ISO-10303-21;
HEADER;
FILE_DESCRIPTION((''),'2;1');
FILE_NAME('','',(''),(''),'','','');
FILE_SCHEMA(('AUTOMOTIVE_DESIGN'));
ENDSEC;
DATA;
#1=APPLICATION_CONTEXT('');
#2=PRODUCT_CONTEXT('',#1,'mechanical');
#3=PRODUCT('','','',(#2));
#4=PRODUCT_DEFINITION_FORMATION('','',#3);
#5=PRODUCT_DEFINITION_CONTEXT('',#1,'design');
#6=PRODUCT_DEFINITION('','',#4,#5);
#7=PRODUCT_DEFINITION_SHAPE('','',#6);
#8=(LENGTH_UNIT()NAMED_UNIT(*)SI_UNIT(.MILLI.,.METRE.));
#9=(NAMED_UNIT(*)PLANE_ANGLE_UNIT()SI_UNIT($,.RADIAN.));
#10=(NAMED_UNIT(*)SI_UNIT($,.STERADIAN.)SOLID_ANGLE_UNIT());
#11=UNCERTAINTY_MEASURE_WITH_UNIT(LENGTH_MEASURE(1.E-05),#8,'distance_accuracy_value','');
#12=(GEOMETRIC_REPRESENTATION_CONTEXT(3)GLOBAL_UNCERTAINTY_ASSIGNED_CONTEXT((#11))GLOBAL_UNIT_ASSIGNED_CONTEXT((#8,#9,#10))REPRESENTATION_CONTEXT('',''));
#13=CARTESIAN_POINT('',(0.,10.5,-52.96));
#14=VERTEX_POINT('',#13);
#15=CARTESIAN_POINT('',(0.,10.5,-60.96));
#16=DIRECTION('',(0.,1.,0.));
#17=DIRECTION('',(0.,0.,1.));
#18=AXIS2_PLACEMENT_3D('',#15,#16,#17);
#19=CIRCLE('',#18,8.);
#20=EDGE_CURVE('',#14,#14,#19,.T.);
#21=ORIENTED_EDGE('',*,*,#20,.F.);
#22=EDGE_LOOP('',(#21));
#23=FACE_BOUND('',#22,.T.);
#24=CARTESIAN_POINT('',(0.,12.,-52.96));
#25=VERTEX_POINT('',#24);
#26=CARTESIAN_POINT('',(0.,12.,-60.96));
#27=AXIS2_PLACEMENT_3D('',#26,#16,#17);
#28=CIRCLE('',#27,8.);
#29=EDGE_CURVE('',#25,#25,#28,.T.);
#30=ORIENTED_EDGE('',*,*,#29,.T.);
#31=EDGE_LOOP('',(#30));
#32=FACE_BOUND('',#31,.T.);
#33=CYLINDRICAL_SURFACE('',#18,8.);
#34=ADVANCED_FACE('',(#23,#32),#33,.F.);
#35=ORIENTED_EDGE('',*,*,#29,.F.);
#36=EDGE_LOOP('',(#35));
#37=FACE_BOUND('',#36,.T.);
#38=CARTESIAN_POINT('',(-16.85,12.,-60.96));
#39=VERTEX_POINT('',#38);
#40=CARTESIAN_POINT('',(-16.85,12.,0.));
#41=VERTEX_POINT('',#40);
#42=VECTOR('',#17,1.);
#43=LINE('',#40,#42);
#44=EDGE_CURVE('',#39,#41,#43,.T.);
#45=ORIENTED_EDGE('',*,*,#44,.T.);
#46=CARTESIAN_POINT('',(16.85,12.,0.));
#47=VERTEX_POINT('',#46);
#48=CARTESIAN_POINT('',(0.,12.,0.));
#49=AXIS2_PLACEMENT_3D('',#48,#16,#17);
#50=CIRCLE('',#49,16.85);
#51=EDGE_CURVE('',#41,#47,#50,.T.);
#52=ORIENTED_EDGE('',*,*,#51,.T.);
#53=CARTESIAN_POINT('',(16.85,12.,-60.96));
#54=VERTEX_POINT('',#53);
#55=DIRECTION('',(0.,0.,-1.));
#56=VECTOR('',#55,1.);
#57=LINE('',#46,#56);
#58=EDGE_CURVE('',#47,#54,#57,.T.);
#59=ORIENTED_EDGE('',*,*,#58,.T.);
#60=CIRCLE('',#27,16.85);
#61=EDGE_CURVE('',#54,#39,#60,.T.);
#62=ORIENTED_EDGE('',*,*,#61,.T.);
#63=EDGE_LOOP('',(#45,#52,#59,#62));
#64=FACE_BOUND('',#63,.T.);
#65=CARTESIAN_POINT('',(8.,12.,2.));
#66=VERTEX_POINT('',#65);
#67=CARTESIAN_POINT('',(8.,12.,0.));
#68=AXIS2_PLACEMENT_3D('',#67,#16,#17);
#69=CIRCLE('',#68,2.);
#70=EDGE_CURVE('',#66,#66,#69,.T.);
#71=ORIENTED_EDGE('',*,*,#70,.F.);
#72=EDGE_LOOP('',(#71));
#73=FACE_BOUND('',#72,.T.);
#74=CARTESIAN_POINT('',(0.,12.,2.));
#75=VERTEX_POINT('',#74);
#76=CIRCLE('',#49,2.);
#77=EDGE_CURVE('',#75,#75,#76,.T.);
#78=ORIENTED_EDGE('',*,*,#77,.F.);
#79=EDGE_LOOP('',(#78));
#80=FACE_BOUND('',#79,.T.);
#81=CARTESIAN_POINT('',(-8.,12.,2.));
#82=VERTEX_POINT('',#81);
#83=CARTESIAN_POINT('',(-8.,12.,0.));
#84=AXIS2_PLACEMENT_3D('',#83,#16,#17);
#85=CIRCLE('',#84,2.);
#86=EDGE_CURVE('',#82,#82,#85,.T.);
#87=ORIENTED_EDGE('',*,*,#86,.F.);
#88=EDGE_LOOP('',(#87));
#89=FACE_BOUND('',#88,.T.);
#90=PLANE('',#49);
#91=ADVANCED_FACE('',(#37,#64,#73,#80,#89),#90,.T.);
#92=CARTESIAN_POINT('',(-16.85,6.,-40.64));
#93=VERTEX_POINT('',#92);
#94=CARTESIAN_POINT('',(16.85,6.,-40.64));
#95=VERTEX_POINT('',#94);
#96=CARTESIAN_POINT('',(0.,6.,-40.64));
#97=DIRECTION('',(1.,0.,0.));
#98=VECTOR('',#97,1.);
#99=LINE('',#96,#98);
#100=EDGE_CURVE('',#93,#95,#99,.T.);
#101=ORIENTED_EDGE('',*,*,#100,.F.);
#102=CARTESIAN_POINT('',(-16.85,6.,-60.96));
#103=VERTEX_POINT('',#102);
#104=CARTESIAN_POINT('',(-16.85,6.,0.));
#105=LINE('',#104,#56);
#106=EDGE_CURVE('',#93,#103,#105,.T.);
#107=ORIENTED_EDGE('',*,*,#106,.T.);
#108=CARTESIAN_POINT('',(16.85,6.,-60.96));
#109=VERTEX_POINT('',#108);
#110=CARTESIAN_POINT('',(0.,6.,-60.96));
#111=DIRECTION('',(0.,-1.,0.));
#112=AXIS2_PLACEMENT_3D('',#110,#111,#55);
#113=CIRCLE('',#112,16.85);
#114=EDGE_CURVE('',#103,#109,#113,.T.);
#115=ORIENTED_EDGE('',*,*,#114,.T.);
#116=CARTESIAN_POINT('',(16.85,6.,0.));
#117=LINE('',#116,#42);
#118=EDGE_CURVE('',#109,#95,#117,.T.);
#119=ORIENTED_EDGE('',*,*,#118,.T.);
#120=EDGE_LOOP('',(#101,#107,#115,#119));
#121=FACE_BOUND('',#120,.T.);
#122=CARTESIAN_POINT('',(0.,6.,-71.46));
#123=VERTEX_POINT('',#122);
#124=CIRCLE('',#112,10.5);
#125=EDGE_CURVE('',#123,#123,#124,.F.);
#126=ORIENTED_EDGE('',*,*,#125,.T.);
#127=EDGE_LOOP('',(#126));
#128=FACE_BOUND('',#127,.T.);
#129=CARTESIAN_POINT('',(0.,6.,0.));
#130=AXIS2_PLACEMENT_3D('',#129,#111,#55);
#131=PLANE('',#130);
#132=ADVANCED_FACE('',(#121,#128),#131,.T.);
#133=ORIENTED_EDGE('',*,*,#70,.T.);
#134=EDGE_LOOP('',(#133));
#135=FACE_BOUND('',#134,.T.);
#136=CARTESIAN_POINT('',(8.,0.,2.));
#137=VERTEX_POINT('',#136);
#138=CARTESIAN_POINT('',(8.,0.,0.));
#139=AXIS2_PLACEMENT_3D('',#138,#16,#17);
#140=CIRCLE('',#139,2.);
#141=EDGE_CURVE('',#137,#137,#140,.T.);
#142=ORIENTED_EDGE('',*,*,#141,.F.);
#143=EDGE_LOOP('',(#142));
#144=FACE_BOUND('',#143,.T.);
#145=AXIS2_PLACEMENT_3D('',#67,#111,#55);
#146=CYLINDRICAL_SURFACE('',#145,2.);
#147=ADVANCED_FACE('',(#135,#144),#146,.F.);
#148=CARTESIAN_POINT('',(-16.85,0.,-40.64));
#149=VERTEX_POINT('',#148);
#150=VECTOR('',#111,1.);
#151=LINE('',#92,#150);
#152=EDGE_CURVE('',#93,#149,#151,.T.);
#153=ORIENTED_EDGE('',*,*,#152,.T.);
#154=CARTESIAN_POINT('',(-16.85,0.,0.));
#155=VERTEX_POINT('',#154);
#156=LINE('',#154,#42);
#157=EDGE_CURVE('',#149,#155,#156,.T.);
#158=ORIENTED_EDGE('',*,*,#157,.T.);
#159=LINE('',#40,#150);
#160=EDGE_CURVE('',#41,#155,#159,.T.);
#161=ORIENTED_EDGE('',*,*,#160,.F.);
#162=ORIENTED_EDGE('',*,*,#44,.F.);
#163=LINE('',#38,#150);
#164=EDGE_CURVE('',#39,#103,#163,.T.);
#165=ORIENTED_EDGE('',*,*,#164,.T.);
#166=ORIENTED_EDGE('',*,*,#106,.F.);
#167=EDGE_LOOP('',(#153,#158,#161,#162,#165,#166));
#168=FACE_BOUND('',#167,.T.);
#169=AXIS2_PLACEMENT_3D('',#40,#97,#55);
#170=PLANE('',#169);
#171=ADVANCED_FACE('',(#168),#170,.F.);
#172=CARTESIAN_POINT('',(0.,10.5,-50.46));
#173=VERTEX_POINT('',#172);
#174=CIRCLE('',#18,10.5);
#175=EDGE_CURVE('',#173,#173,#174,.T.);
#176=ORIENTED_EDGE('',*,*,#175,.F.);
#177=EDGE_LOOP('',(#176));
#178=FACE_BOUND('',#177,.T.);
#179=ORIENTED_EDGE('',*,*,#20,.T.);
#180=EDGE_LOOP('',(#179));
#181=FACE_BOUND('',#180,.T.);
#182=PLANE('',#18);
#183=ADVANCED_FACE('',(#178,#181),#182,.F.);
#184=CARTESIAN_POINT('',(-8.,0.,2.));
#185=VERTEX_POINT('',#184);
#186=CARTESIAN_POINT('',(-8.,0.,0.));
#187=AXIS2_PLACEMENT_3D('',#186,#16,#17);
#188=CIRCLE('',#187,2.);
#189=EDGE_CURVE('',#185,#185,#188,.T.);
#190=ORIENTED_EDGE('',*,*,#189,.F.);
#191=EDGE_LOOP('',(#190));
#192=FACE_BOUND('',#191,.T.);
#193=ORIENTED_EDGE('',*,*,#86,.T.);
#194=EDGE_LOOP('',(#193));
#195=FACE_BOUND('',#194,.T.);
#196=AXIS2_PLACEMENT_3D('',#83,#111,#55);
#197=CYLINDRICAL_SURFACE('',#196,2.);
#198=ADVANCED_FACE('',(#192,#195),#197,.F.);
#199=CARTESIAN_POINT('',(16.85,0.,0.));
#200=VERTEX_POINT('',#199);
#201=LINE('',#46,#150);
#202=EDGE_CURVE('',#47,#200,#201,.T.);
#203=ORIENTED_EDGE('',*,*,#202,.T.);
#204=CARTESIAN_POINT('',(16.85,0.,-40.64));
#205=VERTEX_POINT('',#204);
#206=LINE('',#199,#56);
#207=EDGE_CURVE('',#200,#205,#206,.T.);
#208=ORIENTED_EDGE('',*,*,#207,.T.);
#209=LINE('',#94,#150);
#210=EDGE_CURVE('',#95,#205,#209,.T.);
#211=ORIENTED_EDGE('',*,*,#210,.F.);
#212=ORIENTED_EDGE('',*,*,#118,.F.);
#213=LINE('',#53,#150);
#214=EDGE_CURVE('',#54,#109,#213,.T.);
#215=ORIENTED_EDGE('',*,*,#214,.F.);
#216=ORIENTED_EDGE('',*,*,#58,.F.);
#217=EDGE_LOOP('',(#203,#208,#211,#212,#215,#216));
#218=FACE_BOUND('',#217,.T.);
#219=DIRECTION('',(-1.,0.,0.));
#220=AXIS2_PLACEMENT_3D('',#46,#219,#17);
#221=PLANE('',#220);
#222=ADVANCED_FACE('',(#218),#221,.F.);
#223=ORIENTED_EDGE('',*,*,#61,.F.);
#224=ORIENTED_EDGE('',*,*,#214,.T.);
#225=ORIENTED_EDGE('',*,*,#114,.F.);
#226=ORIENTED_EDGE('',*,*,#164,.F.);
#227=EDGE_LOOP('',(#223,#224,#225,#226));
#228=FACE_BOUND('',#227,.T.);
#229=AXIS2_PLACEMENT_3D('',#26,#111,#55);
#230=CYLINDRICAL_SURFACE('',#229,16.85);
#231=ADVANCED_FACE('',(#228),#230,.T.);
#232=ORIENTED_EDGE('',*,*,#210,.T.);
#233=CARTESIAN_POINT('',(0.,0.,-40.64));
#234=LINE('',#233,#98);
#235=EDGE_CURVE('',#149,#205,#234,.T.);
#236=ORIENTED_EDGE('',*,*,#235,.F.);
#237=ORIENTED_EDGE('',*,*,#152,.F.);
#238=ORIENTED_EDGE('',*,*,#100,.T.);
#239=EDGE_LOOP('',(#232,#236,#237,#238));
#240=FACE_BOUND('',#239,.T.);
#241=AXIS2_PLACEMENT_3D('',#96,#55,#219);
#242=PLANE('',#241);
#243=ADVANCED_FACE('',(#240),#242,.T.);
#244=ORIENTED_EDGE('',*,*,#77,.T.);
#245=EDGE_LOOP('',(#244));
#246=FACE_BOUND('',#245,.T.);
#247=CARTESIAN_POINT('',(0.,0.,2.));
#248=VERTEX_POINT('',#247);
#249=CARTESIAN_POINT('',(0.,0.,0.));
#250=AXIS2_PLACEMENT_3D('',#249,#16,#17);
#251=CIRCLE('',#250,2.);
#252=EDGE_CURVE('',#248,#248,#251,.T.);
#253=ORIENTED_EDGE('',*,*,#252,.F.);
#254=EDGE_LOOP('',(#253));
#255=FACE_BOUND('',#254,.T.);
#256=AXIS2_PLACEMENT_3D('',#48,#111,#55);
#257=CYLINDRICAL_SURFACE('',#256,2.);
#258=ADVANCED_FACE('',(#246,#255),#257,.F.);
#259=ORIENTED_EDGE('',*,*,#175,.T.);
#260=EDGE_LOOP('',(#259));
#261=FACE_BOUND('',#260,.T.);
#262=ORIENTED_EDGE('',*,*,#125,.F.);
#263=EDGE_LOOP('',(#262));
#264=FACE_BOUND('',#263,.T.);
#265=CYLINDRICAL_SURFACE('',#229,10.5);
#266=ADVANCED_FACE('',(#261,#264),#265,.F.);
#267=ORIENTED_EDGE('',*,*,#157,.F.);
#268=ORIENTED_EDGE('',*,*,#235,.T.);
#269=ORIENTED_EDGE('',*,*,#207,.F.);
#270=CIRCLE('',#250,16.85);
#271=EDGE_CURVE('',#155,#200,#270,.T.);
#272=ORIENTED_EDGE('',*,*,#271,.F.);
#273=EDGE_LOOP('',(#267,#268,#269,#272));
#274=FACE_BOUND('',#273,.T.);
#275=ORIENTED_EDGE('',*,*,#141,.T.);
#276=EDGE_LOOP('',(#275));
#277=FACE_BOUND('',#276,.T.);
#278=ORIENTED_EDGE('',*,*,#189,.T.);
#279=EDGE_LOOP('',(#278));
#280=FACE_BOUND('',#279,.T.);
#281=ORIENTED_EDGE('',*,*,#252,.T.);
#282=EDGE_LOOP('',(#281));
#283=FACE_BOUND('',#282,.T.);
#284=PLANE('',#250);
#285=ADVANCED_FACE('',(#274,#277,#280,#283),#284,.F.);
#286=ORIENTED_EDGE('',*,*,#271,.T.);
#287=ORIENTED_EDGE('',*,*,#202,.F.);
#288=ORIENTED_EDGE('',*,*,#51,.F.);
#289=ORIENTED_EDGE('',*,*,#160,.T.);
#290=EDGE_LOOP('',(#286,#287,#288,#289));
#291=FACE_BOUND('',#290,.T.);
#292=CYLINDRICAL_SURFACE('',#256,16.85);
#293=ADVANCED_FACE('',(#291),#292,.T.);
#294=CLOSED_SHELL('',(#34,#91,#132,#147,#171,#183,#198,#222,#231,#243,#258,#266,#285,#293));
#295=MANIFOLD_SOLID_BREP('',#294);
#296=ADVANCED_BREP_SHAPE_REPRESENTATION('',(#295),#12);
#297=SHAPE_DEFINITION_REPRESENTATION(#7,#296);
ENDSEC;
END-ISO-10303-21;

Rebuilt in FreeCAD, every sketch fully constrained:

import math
import FreeCAD as App
import Part
import Sketcher

V = App.Vector

doc = App.newDocument("Part")
body = doc.addObject("PartDesign::Body", "Body")

# Sketch on XZ plane
sketch1 = body.newObject("Sketcher::SketchObject", "Sketch")
sketch1.AttachmentSupport = (doc.getObject("XZ_Plane"), [""])
sketch1.MapMode = "FlatFace"
sketch1.addGeometry(Part.LineSegment(V(-16.85, -60.96, 0), V(-16.85, 0, 0)), False)
sketch1.addGeometry(Part.ArcOfCircle(Part.Circle(V(0, 0, 0), V(0, 0, 1), 16.85), math.radians(0), math.radians(180)), False)
sketch1.addGeometry(Part.LineSegment(V(16.85, 0, 0), V(16.85, -60.96, 0)), False)
sketch1.addGeometry(Part.ArcOfCircle(Part.Circle(V(0, -60.96, 0), V(0, 0, 1), 16.85), math.radians(180), math.radians(360)), False)
sketch1.addGeometry(Part.Circle(V(8, 0, 0), V(0, 0, 1), 2), False)
sketch1.addGeometry(Part.Circle(V(0, 0, 0), V(0, 0, 1), 2), False)
sketch1.addGeometry(Part.Circle(V(-8, 0, 0), V(0, 0, 1), 2), False)
sketch1.addGeometry(Part.Circle(V(0, -60.96, 0), V(0, 0, 1), 10.5), False)
sketch1.addConstraint(Sketcher.Constraint("Tangent", 0, 2, 1, 2))
sketch1.addConstraint(Sketcher.Constraint("Tangent", 1, 1, 2, 1))
sketch1.addConstraint(Sketcher.Constraint("Tangent", 2, 2, 3, 2))
sketch1.addConstraint(Sketcher.Constraint("Tangent", 3, 1, 0, 1))
sketch1.addConstraint(Sketcher.Constraint("Vertical", 0))
sketch1.addConstraint(Sketcher.Constraint("Vertical", 2))
sketch1.addConstraint(Sketcher.Constraint("Coincident", 1, 3, -1, 1))
sketch1.addConstraint(Sketcher.Constraint("Coincident", 5, 3, -1, 1))
sketch1.addConstraint(Sketcher.Constraint("Coincident", 7, 3, 3, 3))
sketch1.addConstraint(Sketcher.Constraint("Equal", 4, 5))
sketch1.addConstraint(Sketcher.Constraint("Equal", 5, 6))
sketch1.addConstraint(Sketcher.Constraint("Symmetric", 4, 3, 6, 3, -1, 1))
sketch1.addConstraint(Sketcher.Constraint("PointOnObject", 4, 3, -1))
sketch1.addConstraint(Sketcher.Constraint("Diameter", 4, 4.0))
sketch1.addConstraint(Sketcher.Constraint("Diameter", 7, 21.0))
sketch1.addConstraint(Sketcher.Constraint("Radius", 1, 16.85))
sketch1.addConstraint(Sketcher.Constraint("DistanceX", -1, 1, 4, 3, 8.0))
sketch1.addConstraint(Sketcher.Constraint("DistanceY", 0, 1, 0, 2, 60.96))
pad1 = body.newObject("PartDesign::Pad", "Pad")
pad1.Profile = sketch1
pad1.Length = 12
pad1.Reversed = True

# Sketch on XZ plane
sketch2 = body.newObject("Sketcher::SketchObject", "Sketch001")
sketch2.AttachmentSupport = (doc.getObject("XZ_Plane"), [""])
sketch2.MapMode = "FlatFace"
sketch2.addGeometry(Part.LineSegment(V(-16.85, -40.64, 0), V(-16.85, -60.96, 0)), False)
sketch2.addGeometry(Part.ArcOfCircle(Part.Circle(V(0, -60.96, 0), V(0, 0, 1), 16.85), math.radians(180), math.radians(360)), False)
sketch2.addGeometry(Part.LineSegment(V(16.85, -60.96, 0), V(16.85, -40.64, 0)), False)
sketch2.addGeometry(Part.LineSegment(V(16.85, -40.64, 0), V(-16.85, -40.64, 0)), False)
sketch2.addGeometry(Part.Circle(V(0, -60.96, 0), V(0, 0, 1), 10.5), False)
sketch2.addConstraint(Sketcher.Constraint("Tangent", 0, 2, 1, 1))
sketch2.addConstraint(Sketcher.Constraint("Tangent", 1, 2, 2, 1))
sketch2.addConstraint(Sketcher.Constraint("Coincident", 2, 2, 3, 1))
sketch2.addConstraint(Sketcher.Constraint("Coincident", 3, 2, 0, 1))
sketch2.addConstraint(Sketcher.Constraint("Vertical", 0))
sketch2.addConstraint(Sketcher.Constraint("Vertical", 2))
sketch2.addConstraint(Sketcher.Constraint("Horizontal", 3))
sketch2.addConstraint(Sketcher.Constraint("Coincident", 4, 3, 1, 3))
sketch2.addConstraint(Sketcher.Constraint("PointOnObject", 1, 3, -2))
sketch2.addConstraint(Sketcher.Constraint("Diameter", 4, 21.0))
sketch2.addConstraint(Sketcher.Constraint("Radius", 1, 16.85))
sketch2.addConstraint(Sketcher.Constraint("DistanceY", 0, 2, 0, 1, 20.32))
sketch2.addConstraint(Sketcher.Constraint("DistanceY", 1, 3, -1, 1, 60.96))
pocket1 = body.newObject("PartDesign::Pocket", "Pocket")
pocket1.Profile = sketch2
pocket1.Length = 6

# Sketch on XZ plane
sketch3 = body.newObject("Sketcher::SketchObject", "Sketch002")
sketch3.AttachmentSupport = (doc.getObject("XZ_Plane"), [""])
sketch3.MapMode = "FlatFace"
sketch3.AttachmentOffset = App.Placement(V(0, 0, -10.5), App.Rotation())
sketch3.addGeometry(Part.Circle(V(0, -60.96, 0), V(0, 0, 1), 10.5), False)
sketch3.addGeometry(Part.Circle(V(0, -60.96, 0), V(0, 0, 1), 8), False)
sketch3.addConstraint(Sketcher.Constraint("Coincident", 1, 3, 0, 3))
sketch3.addConstraint(Sketcher.Constraint("PointOnObject", 0, 3, -2))
sketch3.addConstraint(Sketcher.Constraint("Diameter", 0, 21.0))
sketch3.addConstraint(Sketcher.Constraint("Diameter", 1, 16.0))
sketch3.addConstraint(Sketcher.Constraint("DistanceY", 0, 3, -1, 1, 60.96))
pad2 = body.newObject("PartDesign::Pad", "Pad001")
pad2.Profile = sketch3
pad2.Length = 1.5
pad2.Reversed = True

doc.recompute()
